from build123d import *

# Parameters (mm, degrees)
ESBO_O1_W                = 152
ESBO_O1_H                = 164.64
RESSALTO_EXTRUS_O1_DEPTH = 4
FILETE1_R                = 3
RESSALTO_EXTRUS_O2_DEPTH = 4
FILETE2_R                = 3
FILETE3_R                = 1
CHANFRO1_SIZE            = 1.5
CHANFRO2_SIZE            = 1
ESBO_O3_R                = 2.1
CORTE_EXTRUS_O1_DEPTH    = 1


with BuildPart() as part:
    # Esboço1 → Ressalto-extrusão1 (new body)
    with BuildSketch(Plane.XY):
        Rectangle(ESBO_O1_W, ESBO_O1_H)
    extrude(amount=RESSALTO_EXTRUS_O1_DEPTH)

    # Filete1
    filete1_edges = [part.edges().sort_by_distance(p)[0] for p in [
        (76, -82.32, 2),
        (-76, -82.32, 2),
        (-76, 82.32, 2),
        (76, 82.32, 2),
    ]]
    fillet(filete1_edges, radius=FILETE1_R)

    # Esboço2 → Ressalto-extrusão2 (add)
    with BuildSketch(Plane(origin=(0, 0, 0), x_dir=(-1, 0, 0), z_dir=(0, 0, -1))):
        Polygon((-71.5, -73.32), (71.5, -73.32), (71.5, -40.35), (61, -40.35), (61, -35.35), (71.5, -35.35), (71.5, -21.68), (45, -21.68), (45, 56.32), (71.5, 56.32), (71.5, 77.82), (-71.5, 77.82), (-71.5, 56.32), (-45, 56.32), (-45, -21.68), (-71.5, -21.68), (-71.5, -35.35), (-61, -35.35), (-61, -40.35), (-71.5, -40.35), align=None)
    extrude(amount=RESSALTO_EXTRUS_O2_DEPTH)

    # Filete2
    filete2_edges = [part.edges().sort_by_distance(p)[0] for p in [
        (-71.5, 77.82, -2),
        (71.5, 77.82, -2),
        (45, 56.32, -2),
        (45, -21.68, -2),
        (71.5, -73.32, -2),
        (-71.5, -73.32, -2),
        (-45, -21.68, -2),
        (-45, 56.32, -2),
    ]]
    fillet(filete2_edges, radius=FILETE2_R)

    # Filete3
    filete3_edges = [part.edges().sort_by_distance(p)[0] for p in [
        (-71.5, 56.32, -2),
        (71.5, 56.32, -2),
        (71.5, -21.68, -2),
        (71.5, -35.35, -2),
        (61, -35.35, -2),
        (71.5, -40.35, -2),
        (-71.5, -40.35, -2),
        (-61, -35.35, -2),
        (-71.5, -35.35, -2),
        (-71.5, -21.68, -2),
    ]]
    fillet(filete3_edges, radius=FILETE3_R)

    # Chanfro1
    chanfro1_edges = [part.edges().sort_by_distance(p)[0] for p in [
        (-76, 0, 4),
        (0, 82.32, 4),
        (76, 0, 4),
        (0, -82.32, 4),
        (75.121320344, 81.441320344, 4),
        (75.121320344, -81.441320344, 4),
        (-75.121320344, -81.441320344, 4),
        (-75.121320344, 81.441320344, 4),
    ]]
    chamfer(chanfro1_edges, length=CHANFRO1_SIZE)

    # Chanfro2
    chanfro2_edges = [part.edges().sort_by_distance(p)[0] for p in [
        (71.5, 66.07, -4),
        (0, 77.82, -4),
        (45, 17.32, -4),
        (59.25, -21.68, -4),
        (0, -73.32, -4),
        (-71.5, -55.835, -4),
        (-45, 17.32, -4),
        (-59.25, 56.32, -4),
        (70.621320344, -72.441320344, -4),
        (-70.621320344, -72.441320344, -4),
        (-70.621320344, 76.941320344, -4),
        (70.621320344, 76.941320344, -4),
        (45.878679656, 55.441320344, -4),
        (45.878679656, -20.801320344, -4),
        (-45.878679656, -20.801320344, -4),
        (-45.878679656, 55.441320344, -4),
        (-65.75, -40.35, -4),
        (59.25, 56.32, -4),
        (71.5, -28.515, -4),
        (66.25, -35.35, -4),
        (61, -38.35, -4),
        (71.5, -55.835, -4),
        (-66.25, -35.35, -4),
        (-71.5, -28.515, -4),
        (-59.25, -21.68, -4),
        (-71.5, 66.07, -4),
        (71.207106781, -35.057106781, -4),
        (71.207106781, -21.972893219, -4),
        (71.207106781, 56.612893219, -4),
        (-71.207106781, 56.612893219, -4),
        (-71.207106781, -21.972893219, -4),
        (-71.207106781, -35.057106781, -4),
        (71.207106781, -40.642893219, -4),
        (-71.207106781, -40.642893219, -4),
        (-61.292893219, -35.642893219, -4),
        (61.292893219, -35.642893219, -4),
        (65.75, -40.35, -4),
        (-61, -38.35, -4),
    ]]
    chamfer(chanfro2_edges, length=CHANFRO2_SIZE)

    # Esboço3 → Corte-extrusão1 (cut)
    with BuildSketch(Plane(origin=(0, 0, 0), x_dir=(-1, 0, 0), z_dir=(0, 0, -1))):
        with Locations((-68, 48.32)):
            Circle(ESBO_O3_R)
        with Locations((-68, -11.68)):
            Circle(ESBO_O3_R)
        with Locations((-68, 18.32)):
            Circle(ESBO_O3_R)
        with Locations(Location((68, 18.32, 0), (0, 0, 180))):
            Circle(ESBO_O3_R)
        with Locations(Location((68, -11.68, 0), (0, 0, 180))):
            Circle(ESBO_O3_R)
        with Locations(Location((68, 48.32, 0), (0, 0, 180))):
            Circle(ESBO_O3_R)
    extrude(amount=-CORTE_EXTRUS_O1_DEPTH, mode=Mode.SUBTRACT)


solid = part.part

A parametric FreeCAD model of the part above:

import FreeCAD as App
import Part
import Sketcher


def edges_at(feature, points):
    """Names of the edges that pass closest to the given points."""
    edges = feature.Shape.Edges
    near = lambda p: min(range(len(edges)), key=lambda i: edges[i].distToShape(Part.Vertex(*p))[0])
    return sorted({f"Edge{near(p) + 1}" for p in points})

doc = App.newDocument("Part")
params = doc.addObject("Spreadsheet::Sheet", "Params")
for row, (alias, value) in enumerate([
    ("sketch1_width", "152 mm"),
    ("sketch1_height", "164.64 mm"),
    ("pad1_length", "4 mm"),
    ("fillet_radius", "3 mm"),
    ("sketch2_width", "143 mm"),
    ("sketch2_height", "5 mm"),
    ("sketch2_height2", "78 mm"),
    ("sketch2_width2", "10.5 mm"),
    ("sketch2_width3", "26.5 mm"),
    ("pad2_length", "4 mm"),
    ("fillet2_radius", "3 mm"),
    ("fillet3_radius", "1 mm"),
    ("chamfer_size", "1.5 mm"),
    ("chamfer2_size", "1 mm"),
    ("sketch3_diameter", "4.2 mm"),
    ("pocket1_length", "1 mm"),
], start=1):
    params.set(f"A{row}", alias)
    params.set(f"B{row}", "=" + value)
    params.setAlias(f"B{row}", alias)

body = doc.addObject("PartDesign::Body", "Body")

# Sketch on XY plane
sketch1 = doc.addObject("Sketcher::SketchObject", "Sketch")
body.addObject(sketch1)
sketch1.AttachmentSupport = (doc.XY_Plane, [""])
sketch1.MapMode = "FlatFace"
sketch1.addGeometry(Part.LineSegment(App.Vector(-76, 82.32, 0), App.Vector(-76, -82.32, 0)), False)
sketch1.addGeometry(Part.LineSegment(App.Vector(-76, -82.32, 0), App.Vector(76, -82.32, 0)), False)
sketch1.addGeometry(Part.LineSegment(App.Vector(76, -82.32, 0), App.Vector(76, 82.32, 0)), False)
sketch1.addGeometry(Part.LineSegment(App.Vector(76, 82.32, 0), App.Vector(-76, 82.32, 0)), False)
sketch1.addConstraint(Sketcher.Constraint("Coincident", 0, 2, 1, 1))
sketch1.addConstraint(Sketcher.Constraint("Coincident", 1, 2, 2, 1))
sketch1.addConstraint(Sketcher.Constraint("Coincident", 2, 2, 3, 1))
sketch1.addConstraint(Sketcher.Constraint("Coincident", 3, 2, 0, 1))
sketch1.addConstraint(Sketcher.Constraint("Vertical", 0))
sketch1.addConstraint(Sketcher.Constraint("Horizontal", 1))
sketch1.addConstraint(Sketcher.Constraint("Vertical", 2))
sketch1.addConstraint(Sketcher.Constraint("Horizontal", 3))
sketch1.addConstraint(Sketcher.Constraint("Symmetric", 0, 2, 2, 2, -1, 1))
sketch1.addConstraint(Sketcher.Constraint("DistanceX", 1, 1, 1, 2, 152.0))
sketch1.addConstraint(Sketcher.Constraint("DistanceY", 0, 2, 0, 1, 164.64))
sketch1.setExpression("Constraints[9]", "Params.sketch1_width")
sketch1.setExpression("Constraints[10]", "Params.sketch1_height")
pad1 = doc.addObject("PartDesign::Pad", "Pad")
body.addObject(pad1)
pad1.Profile = sketch1
pad1.setExpression("Length", "Params.pad1_length")
doc.recompute()

fillet = doc.addObject("PartDesign::Fillet", "Fillet")
body.addObject(fillet)
fillet.Base = (pad1, edges_at(pad1, [
    (76, -82.32, 2),
    (-76, -82.32, 2),
    (-76, 82.32, 2),
    (76, 82.32, 2),
]))
fillet.setExpression("Radius", "Params.fillet_radius")

# Sketch on XY plane
sketch2 = doc.addObject("Sketcher::SketchObject", "Sketch001")
body.addObject(sketch2)
sketch2.AttachmentSupport = (doc.XY_Plane, [""])
sketch2.MapMode = "FlatFace"
sketch2.addGeometry(Part.LineSegment(App.Vector(71.5, -73.32, 0), App.Vector(-71.5, -73.32, 0)), False)
sketch2.addGeometry(Part.LineSegment(App.Vector(-71.5, -73.32, 0), App.Vector(-71.5, -40.35, 0)), False)
sketch2.addGeometry(Part.LineSegment(App.Vector(-71.5, -40.35, 0), App.Vector(-61, -40.35, 0)), False)
sketch2.addGeometry(Part.LineSegment(App.Vector(-61, -40.35, 0), App.Vector(-61, -35.35, 0)), False)
sketch2.addGeometry(Part.LineSegment(App.Vector(-61, -35.35, 0), App.Vector(-71.5, -35.35, 0)), False)
sketch2.addGeometry(Part.LineSegment(App.Vector(-71.5, -35.35, 0), App.Vector(-71.5, -21.68, 0)), False)
sketch2.addGeometry(Part.LineSegment(App.Vector(-71.5, -21.68, 0), App.Vector(-45, -21.68, 0)), False)
sketch2.addGeometry(Part.LineSegment(App.Vector(-45, -21.68, 0), App.Vector(-45, 56.32, 0)), False)
sketch2.addGeometry(Part.LineSegment(App.Vector(-45, 56.32, 0), App.Vector(-71.5, 56.32, 0)), False)
sketch2.addGeometry(Part.LineSegment(App.Vector(-71.5, 56.32, 0), App.Vector(-71.5, 77.82, 0)), False)
sketch2.addGeometry(Part.LineSegment(App.Vector(-71.5, 77.82, 0), App.Vector(71.5, 77.82, 0)), False)
sketch2.addGeometry(Part.LineSegment(App.Vector(71.5, 77.82, 0), App.Vector(71.5, 56.32, 0)), False)
sketch2.addGeometry(Part.LineSegment(App.Vector(71.5, 56.32, 0), App.Vector(45, 56.32, 0)), False)
sketch2.addGeometry(Part.LineSegment(App.Vector(45, 56.32, 0), App.Vector(45, -21.68, 0)), False)
sketch2.addGeometry(Part.LineSegment(App.Vector(45, -21.68, 0), App.Vector(71.5, -21.68, 0)), False)
sketch2.addGeometry(Part.LineSegment(App.Vector(71.5, -21.68, 0), App.Vector(71.5, -35.35, 0)), False)
sketch2.addGeometry(Part.LineSegment(App.Vector(71.5, -35.35, 0), App.Vector(61, -35.35, 0)), False)
sketch2.addGeometry(Part.LineSegment(App.Vector(61, -35.35, 0), App.Vector(61, -40.35, 0)), False)
sketch2.addGeometry(Part.LineSegment(App.Vector(61, -40.35, 0), App.Vector(71.5, -40.35, 0)), False)
sketch2.addGeometry(Part.LineSegment(App.Vector(71.5, -40.35, 0), App.Vector(71.5, -73.32, 0)), False)
sketch2.addConstraint(Sketcher.Constraint("Coincident", 0, 2, 1, 1))
sketch2.addConstraint(Sketcher.Constraint("Coincident", 1, 2, 2, 1))
sketch2.addConstraint(Sketcher.Constraint("Coincident", 2, 2, 3, 1))
sketch2.addConstraint(Sketcher.Constraint("Coincident", 3, 2, 4, 1))
sketch2.addConstraint(Sketcher.Constraint("Coincident", 4, 2, 5, 1))
sketch2.addConstraint(Sketcher.Constraint("Coincident", 5, 2, 6, 1))
sketch2.addConstraint(Sketcher.Constraint("Coincident", 6, 2, 7, 1))
sketch2.addConstraint(Sketcher.Constraint("Coincident", 7, 2, 8, 1))
sketch2.addConstraint(Sketcher.Constraint("Coincident", 8, 2, 9, 1))
sketch2.addConstraint(Sketcher.Constraint("Coincident", 9, 2, 10, 1))
sketch2.addConstraint(Sketcher.Constraint("Coincident", 10, 2, 11, 1))
sketch2.addConstraint(Sketcher.Constraint("Coincident", 11, 2, 12, 1))
sketch2.addConstraint(Sketcher.Constraint("Coincident", 12, 2, 13, 1))
sketch2.addConstraint(Sketcher.Constraint("Coincident", 13, 2, 14, 1))
sketch2.addConstraint(Sketcher.Constraint("Coincident", 14, 2, 15, 1))
sketch2.addConstraint(Sketcher.Constraint("Coincident", 15, 2, 16, 1))
sketch2.addConstraint(Sketcher.Constraint("Coincident", 16, 2, 17, 1))
sketch2.addConstraint(Sketcher.Constraint("Coincident", 17, 2, 18, 1))
sketch2.addConstraint(Sketcher.Constraint("Coincident", 18, 2, 19, 1))
sketch2.addConstraint(Sketcher.Constraint("Coincident", 19, 2, 0, 1))
sketch2.addConstraint(Sketcher.Constraint("Horizontal", 0))
sketch2.addConstraint(Sketcher.Constraint("Vertical", 1))
sketch2.addConstraint(Sketcher.Constraint("Horizontal", 2))
sketch2.addConstraint(Sketcher.Constraint("Vertical", 3))
sketch2.addConstraint(Sketcher.Constraint("Horizontal", 4))
sketch2.addConstraint(Sketcher.Constraint("Vertical", 5))
sketch2.addConstraint(Sketcher.Constraint("Horizontal", 6))
sketch2.addConstraint(Sketcher.Constraint("Vertical", 7))
sketch2.addConstraint(Sketcher.Constraint("Horizontal", 8))
sketch2.addConstraint(Sketcher.Constraint("Vertical", 9))
sketch2.addConstraint(Sketcher.Constraint("Horizontal", 10))
sketch2.addConstraint(Sketcher.Constraint("Vertical", 11))
sketch2.addConstraint(Sketcher.Constraint("Horizontal", 12))
sketch2.addConstraint(Sketcher.Constraint("Vertical", 13))
sketch2.addConstraint(Sketcher.Constraint("Horizontal", 14))
sketch2.addConstraint(Sketcher.Constraint("Vertical", 15))
sketch2.addConstraint(Sketcher.Constraint("Horizontal", 16))
sketch2.addConstraint(Sketcher.Constraint("Vertical", 17))
sketch2.addConstraint(Sketcher.Constraint("Horizontal", 18))
sketch2.addConstraint(Sketcher.Constraint("Vertical", 19))
sketch2.addConstraint(Sketcher.Constraint("Symmetric", 8, 2, 11, 2, -2))
sketch2.addConstraint(Sketcher.Constraint("Symmetric", 6, 2, 13, 2, -2))
sketch2.addConstraint(Sketcher.Constraint("Symmetric", 4, 2, 15, 2, -2))
sketch2.addConstraint(Sketcher.Constraint("Symmetric", 2, 2, 17, 2, -2))
sketch2.addConstraint(Sketcher.Constraint("Vertical", 1, 2, 4, 2))
sketch2.addConstraint(Sketcher.Constraint("Vertical", 5, 2, 8, 2))
sketch2.addConstraint(Sketcher.Constraint("Vertical", 15, 2, 18, 2))
sketch2.addConstraint(Sketcher.Constraint("DistanceX", 0, 2, 0, 1, 143.0))
sketch2.addConstraint(Sketcher.Constraint("DistanceY", 3, 1, 3, 2, 5.0))
sketch2.addConstraint(Sketcher.Constraint("DistanceY", 7, 1, 7, 2, 78.0))
sketch2.addConstraint(Sketcher.Constraint("DistanceX", 2, 1, 2, 2, 10.5))
sketch2.addConstraint(Sketcher.Constraint("DistanceX", 6, 1, 6, 2, 26.5))
sketch2.addConstraint(Sketcher.Constraint("DistanceY", 9, 1, 9, 2, 21.5))
sketch2.addConstraint(Sketcher.Constraint("DistanceY", 1, 1, 1, 2, 32.97))
sketch2.addConstraint(Sketcher.Constraint("DistanceY", 5, 1, 5, 2, 13.67))
sketch2.addConstraint(Sketcher.Constraint("DistanceY", 0, 2, -1, 1, 73.32))
sketch2.setExpression("Constraints[47]", "Params.sketch2_width")
sketch2.setExpression("Constraints[48]", "Params.sketch2_height")
sketch2.setExpression("Constraints[49]", "Params.sketch2_height2")
sketch2.setExpression("Constraints[50]", "Params.sketch2_width2")
sketch2.setExpression("Constraints[51]", "Params.sketch2_width3")
pad2 = doc.addObject("PartDesign::Pad", "Pad001")
body.addObject(pad2)
pad2.Profile = sketch2
pad2.setExpression("Length", "Params.pad2_length")
pad2.Reversed = True
doc.recompute()

fillet2 = doc.addObject("PartDesign::Fillet", "Fillet001")
body.addObject(fillet2)
fillet2.Base = (pad2, edges_at(pad2, [
    (-71.5, 77.82, -2),
    (71.5, 77.82, -2),
    (45, 56.32, -2),
    (45, -21.68, -2),
    (71.5, -73.32, -2),
    (-71.5, -73.32, -2),
    (-45, -21.68, -2),
    (-45, 56.32, -2),
]))
fillet2.setExpression("Radius", "Params.fillet2_radius")
doc.recompute()

fillet3 = doc.addObject("PartDesign::Fillet", "Fillet002")
body.addObject(fillet3)
fillet3.Base = (fillet2, edges_at(fillet2, [
    (-71.5, 56.32, -2),
    (71.5, 56.32, -2),
    (71.5, -21.68, -2),
    (71.5, -35.35, -2),
    (61, -35.35, -2),
    (71.5, -40.35, -2),
    (-71.5, -40.35, -2),
    (-61, -35.35, -2),
    (-71.5, -35.35, -2),
    (-71.5, -21.68, -2),
]))
fillet3.setExpression("Radius", "Params.fillet3_radius")
doc.recompute()

chamfer = doc.addObject("PartDesign::Chamfer", "Chamfer")
body.addObject(chamfer)
chamfer.Base = (fillet3, edges_at(fillet3, [
    (-76, 0, 4),
    (0, 82.32, 4),
    (76, 0, 4),
    (0, -82.32, 4),
    (75.121, 81.441, 4),
    (75.121, -81.441, 4),
    (-75.121, -81.441, 4),
    (-75.121, 81.441, 4),
]))
chamfer.setExpression("Size", "Params.chamfer_size")
doc.recompute()

chamfer2 = doc.addObject("PartDesign::Chamfer", "Chamfer001")
body.addObject(chamfer2)
chamfer2.Base = (chamfer, edges_at(chamfer, [
    (71.5, 66.07, -4),
    (0, 77.82, -4),
    (45, 17.32, -4),
    (59.25, -21.68, -4),
    (0, -73.32, -4),
    (-71.5, -55.835, -4),
    (-45, 17.32, -4),
    (-59.25, 56.32, -4),
    (70.621, -72.441, -4),
    (-70.621, -72.441, -4),
    (-70.621, 76.941, -4),
    (70.621, 76.941, -4),
    (45.879, 55.441, -4),
    (45.879, -20.801, -4),
    (-45.879, -20.801, -4),
    (-45.879, 55.441, -4),
    (-65.75, -40.35, -4),
    (59.25, 56.32, -4),
    (71.5, -28.515, -4),
    (66.25, -35.35, -4),
    (61, -38.35, -4),
    (71.5, -55.835, -4),
    (-66.25, -35.35, -4),
    (-71.5, -28.515, -4),
    (-59.25, -21.68, -4),
    (-71.5, 66.07, -4),
    (71.207, -35.057, -4),
    (71.207, -21.973, -4),
    (71.207, 56.613, -4),
    (-71.207, 56.613, -4),
    (-71.207, -21.973, -4),
    (-71.207, -35.057, -4),
    (71.207, -40.643, -4),
    (-71.207, -40.643, -4),
    (-61.293, -35.643, -4),
    (61.293, -35.643, -4),
    (65.75, -40.35, -4),
    (-61, -38.35, -4),
]))
chamfer2.setExpression("Size", "Params.chamfer2_size")

# Sketch on XY plane
sketch3 = doc.addObject("Sketcher::SketchObject", "Sketch002")
body.addObject(sketch3)
sketch3.AttachmentSupport = (doc.XY_Plane, [""])
sketch3.MapMode = "FlatFace"
sketch3.addGeometry(Part.Circle(App.Vector(68, 48.32, 0), App.Vector(0, 0, 1), 2.1), False)
sketch3.addGeometry(Part.Circle(App.Vector(68, -11.68, 0), App.Vector(0, 0, 1), 2.1), False)
sketch3.addGeometry(Part.Circle(App.Vector(68, 18.32, 0), App.Vector(0, 0, 1), 2.1), False)
sketch3.addGeometry(Part.Circle(App.Vector(-68, 18.32, 0), App.Vector(0, 0, 1), 2.1), False)
sketch3.addGeometry(Part.Circle(App.Vector(-68, -11.68, 0), App.Vector(0, 0, 1), 2.1), False)
sketch3.addGeometry(Part.Circle(App.Vector(-68, 48.32, 0), App.Vector(0, 0, 1), 2.1), False)
sketch3.addConstraint(Sketcher.Constraint("Equal", 0, 1))
sketch3.addConstraint(Sketcher.Constraint("Equal", 1, 2))
sketch3.addConstraint(Sketcher.Constraint("Equal", 2, 3))
sketch3.addConstraint(Sketcher.Constraint("Equal", 3, 4))
sketch3.addConstraint(Sketcher.Constraint("Equal", 4, 5))
sketch3.addConstraint(Sketcher.Constraint("Symmetric", 2, 3, 3, 3, -2))
sketch3.addConstraint(Sketcher.Constraint("Symmetric", 1, 3, 4, 3, -2))
sketch3.addConstraint(Sketcher.Constraint("Symmetric", 0, 3, 5, 3, -2))
sketch3.addConstraint(Sketcher.Constraint("Vertical", 0, 3, 1, 3))
sketch3.addConstraint(Sketcher.Constraint("Vertical", 1, 3, 2, 3))
sketch3.addConstraint(Sketcher.Constraint("Diameter", 0, 4.2))
sketch3.addConstraint(Sketcher.Constraint("DistanceX", -1, 1, 0, 3, 68.0))
sketch3.addConstraint(Sketcher.Constraint("DistanceY", 1, 3, 0, 3, 60.0))
sketch3.addConstraint(Sketcher.Constraint("DistanceY", 2, 3, 0, 3, 30.0))
sketch3.addConstraint(Sketcher.Constraint("DistanceY", -1, 1, 0, 3, 48.32))
sketch3.setExpression("Constraints[10]", "Params.sketch3_diameter")
pocket1 = doc.addObject("PartDesign::Pocket", "Pocket")
body.addObject(pocket1)
pocket1.Profile = sketch3
pocket1.setExpression("Length", "Params.pocket1_length")
pocket1.Reversed = True

doc.recompute()
